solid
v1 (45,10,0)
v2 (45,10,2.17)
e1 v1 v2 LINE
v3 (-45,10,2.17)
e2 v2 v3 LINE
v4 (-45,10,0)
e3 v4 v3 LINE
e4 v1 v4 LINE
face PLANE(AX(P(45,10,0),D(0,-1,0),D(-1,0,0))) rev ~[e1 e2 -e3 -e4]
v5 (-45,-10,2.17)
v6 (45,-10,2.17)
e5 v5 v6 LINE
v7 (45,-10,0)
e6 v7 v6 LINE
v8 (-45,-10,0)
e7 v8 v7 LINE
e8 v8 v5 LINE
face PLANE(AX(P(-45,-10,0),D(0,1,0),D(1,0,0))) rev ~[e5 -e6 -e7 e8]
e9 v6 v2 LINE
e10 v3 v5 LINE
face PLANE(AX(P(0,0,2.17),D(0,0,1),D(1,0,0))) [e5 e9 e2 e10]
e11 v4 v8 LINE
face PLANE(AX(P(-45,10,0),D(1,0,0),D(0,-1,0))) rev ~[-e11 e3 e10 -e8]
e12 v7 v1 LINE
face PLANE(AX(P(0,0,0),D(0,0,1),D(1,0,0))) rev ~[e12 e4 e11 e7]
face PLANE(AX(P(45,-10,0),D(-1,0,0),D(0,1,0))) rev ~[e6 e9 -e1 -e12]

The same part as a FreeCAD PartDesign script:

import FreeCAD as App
import Part
import Sketcher

V = App.Vector

doc = App.newDocument("Part")
body = doc.addObject("PartDesign::Body", "Body")

sketch1 = doc.addObject("Sketcher::SketchObject", "Sketch")
body.addObject(sketch1)
sketch1.AttachmentSupport = (doc.XY_Plane, [""])
sketch1.MapMode = "FlatFace"
sketch1.addGeometry(Part.LineSegment(V(45, -10, 0), V(45, 10, 0)), False)
sketch1.addGeometry(Part.LineSegment(V(45, 10, 0), V(-45, 10, 0)), False)
sketch1.addGeometry(Part.LineSegment(V(-45, 10, 0), V(-45, -10, 0)), False)
sketch1.addGeometry(Part.LineSegment(V(-45, -10, 0), V(45, -10, 0)), False)
sketch1.addConstraint(Sketcher.Constraint("Coincident", 0, 2, 1, 1))
sketch1.addConstraint(Sketcher.Constraint("Coincident", 1, 2, 2, 1))
sketch1.addConstraint(Sketcher.Constraint("Coincident", 2, 2, 3, 1))
sketch1.addConstraint(Sketcher.Constraint("Coincident", 3, 2, 0, 1))
sketch1.addConstraint(Sketcher.Constraint("Vertical", 0))
sketch1.addConstraint(Sketcher.Constraint("Horizontal", 1))
sketch1.addConstraint(Sketcher.Constraint("Vertical", 2))
sketch1.addConstraint(Sketcher.Constraint("Horizontal", 3))
sketch1.addConstraint(Sketcher.Constraint("Symmetric", 0, 2, 2, 2, -1, 1))
sketch1.addConstraint(Sketcher.Constraint("DistanceX", 1, 2, 1, 1, 90.0))
sketch1.addConstraint(Sketcher.Constraint("DistanceY", 0, 1, 0, 2, 20.0))
pad1 = doc.addObject("PartDesign::Pad", "Pad")
body.addObject(pad1)
pad1.Profile = sketch1
pad1.Length = 2.17

doc.recompute()
